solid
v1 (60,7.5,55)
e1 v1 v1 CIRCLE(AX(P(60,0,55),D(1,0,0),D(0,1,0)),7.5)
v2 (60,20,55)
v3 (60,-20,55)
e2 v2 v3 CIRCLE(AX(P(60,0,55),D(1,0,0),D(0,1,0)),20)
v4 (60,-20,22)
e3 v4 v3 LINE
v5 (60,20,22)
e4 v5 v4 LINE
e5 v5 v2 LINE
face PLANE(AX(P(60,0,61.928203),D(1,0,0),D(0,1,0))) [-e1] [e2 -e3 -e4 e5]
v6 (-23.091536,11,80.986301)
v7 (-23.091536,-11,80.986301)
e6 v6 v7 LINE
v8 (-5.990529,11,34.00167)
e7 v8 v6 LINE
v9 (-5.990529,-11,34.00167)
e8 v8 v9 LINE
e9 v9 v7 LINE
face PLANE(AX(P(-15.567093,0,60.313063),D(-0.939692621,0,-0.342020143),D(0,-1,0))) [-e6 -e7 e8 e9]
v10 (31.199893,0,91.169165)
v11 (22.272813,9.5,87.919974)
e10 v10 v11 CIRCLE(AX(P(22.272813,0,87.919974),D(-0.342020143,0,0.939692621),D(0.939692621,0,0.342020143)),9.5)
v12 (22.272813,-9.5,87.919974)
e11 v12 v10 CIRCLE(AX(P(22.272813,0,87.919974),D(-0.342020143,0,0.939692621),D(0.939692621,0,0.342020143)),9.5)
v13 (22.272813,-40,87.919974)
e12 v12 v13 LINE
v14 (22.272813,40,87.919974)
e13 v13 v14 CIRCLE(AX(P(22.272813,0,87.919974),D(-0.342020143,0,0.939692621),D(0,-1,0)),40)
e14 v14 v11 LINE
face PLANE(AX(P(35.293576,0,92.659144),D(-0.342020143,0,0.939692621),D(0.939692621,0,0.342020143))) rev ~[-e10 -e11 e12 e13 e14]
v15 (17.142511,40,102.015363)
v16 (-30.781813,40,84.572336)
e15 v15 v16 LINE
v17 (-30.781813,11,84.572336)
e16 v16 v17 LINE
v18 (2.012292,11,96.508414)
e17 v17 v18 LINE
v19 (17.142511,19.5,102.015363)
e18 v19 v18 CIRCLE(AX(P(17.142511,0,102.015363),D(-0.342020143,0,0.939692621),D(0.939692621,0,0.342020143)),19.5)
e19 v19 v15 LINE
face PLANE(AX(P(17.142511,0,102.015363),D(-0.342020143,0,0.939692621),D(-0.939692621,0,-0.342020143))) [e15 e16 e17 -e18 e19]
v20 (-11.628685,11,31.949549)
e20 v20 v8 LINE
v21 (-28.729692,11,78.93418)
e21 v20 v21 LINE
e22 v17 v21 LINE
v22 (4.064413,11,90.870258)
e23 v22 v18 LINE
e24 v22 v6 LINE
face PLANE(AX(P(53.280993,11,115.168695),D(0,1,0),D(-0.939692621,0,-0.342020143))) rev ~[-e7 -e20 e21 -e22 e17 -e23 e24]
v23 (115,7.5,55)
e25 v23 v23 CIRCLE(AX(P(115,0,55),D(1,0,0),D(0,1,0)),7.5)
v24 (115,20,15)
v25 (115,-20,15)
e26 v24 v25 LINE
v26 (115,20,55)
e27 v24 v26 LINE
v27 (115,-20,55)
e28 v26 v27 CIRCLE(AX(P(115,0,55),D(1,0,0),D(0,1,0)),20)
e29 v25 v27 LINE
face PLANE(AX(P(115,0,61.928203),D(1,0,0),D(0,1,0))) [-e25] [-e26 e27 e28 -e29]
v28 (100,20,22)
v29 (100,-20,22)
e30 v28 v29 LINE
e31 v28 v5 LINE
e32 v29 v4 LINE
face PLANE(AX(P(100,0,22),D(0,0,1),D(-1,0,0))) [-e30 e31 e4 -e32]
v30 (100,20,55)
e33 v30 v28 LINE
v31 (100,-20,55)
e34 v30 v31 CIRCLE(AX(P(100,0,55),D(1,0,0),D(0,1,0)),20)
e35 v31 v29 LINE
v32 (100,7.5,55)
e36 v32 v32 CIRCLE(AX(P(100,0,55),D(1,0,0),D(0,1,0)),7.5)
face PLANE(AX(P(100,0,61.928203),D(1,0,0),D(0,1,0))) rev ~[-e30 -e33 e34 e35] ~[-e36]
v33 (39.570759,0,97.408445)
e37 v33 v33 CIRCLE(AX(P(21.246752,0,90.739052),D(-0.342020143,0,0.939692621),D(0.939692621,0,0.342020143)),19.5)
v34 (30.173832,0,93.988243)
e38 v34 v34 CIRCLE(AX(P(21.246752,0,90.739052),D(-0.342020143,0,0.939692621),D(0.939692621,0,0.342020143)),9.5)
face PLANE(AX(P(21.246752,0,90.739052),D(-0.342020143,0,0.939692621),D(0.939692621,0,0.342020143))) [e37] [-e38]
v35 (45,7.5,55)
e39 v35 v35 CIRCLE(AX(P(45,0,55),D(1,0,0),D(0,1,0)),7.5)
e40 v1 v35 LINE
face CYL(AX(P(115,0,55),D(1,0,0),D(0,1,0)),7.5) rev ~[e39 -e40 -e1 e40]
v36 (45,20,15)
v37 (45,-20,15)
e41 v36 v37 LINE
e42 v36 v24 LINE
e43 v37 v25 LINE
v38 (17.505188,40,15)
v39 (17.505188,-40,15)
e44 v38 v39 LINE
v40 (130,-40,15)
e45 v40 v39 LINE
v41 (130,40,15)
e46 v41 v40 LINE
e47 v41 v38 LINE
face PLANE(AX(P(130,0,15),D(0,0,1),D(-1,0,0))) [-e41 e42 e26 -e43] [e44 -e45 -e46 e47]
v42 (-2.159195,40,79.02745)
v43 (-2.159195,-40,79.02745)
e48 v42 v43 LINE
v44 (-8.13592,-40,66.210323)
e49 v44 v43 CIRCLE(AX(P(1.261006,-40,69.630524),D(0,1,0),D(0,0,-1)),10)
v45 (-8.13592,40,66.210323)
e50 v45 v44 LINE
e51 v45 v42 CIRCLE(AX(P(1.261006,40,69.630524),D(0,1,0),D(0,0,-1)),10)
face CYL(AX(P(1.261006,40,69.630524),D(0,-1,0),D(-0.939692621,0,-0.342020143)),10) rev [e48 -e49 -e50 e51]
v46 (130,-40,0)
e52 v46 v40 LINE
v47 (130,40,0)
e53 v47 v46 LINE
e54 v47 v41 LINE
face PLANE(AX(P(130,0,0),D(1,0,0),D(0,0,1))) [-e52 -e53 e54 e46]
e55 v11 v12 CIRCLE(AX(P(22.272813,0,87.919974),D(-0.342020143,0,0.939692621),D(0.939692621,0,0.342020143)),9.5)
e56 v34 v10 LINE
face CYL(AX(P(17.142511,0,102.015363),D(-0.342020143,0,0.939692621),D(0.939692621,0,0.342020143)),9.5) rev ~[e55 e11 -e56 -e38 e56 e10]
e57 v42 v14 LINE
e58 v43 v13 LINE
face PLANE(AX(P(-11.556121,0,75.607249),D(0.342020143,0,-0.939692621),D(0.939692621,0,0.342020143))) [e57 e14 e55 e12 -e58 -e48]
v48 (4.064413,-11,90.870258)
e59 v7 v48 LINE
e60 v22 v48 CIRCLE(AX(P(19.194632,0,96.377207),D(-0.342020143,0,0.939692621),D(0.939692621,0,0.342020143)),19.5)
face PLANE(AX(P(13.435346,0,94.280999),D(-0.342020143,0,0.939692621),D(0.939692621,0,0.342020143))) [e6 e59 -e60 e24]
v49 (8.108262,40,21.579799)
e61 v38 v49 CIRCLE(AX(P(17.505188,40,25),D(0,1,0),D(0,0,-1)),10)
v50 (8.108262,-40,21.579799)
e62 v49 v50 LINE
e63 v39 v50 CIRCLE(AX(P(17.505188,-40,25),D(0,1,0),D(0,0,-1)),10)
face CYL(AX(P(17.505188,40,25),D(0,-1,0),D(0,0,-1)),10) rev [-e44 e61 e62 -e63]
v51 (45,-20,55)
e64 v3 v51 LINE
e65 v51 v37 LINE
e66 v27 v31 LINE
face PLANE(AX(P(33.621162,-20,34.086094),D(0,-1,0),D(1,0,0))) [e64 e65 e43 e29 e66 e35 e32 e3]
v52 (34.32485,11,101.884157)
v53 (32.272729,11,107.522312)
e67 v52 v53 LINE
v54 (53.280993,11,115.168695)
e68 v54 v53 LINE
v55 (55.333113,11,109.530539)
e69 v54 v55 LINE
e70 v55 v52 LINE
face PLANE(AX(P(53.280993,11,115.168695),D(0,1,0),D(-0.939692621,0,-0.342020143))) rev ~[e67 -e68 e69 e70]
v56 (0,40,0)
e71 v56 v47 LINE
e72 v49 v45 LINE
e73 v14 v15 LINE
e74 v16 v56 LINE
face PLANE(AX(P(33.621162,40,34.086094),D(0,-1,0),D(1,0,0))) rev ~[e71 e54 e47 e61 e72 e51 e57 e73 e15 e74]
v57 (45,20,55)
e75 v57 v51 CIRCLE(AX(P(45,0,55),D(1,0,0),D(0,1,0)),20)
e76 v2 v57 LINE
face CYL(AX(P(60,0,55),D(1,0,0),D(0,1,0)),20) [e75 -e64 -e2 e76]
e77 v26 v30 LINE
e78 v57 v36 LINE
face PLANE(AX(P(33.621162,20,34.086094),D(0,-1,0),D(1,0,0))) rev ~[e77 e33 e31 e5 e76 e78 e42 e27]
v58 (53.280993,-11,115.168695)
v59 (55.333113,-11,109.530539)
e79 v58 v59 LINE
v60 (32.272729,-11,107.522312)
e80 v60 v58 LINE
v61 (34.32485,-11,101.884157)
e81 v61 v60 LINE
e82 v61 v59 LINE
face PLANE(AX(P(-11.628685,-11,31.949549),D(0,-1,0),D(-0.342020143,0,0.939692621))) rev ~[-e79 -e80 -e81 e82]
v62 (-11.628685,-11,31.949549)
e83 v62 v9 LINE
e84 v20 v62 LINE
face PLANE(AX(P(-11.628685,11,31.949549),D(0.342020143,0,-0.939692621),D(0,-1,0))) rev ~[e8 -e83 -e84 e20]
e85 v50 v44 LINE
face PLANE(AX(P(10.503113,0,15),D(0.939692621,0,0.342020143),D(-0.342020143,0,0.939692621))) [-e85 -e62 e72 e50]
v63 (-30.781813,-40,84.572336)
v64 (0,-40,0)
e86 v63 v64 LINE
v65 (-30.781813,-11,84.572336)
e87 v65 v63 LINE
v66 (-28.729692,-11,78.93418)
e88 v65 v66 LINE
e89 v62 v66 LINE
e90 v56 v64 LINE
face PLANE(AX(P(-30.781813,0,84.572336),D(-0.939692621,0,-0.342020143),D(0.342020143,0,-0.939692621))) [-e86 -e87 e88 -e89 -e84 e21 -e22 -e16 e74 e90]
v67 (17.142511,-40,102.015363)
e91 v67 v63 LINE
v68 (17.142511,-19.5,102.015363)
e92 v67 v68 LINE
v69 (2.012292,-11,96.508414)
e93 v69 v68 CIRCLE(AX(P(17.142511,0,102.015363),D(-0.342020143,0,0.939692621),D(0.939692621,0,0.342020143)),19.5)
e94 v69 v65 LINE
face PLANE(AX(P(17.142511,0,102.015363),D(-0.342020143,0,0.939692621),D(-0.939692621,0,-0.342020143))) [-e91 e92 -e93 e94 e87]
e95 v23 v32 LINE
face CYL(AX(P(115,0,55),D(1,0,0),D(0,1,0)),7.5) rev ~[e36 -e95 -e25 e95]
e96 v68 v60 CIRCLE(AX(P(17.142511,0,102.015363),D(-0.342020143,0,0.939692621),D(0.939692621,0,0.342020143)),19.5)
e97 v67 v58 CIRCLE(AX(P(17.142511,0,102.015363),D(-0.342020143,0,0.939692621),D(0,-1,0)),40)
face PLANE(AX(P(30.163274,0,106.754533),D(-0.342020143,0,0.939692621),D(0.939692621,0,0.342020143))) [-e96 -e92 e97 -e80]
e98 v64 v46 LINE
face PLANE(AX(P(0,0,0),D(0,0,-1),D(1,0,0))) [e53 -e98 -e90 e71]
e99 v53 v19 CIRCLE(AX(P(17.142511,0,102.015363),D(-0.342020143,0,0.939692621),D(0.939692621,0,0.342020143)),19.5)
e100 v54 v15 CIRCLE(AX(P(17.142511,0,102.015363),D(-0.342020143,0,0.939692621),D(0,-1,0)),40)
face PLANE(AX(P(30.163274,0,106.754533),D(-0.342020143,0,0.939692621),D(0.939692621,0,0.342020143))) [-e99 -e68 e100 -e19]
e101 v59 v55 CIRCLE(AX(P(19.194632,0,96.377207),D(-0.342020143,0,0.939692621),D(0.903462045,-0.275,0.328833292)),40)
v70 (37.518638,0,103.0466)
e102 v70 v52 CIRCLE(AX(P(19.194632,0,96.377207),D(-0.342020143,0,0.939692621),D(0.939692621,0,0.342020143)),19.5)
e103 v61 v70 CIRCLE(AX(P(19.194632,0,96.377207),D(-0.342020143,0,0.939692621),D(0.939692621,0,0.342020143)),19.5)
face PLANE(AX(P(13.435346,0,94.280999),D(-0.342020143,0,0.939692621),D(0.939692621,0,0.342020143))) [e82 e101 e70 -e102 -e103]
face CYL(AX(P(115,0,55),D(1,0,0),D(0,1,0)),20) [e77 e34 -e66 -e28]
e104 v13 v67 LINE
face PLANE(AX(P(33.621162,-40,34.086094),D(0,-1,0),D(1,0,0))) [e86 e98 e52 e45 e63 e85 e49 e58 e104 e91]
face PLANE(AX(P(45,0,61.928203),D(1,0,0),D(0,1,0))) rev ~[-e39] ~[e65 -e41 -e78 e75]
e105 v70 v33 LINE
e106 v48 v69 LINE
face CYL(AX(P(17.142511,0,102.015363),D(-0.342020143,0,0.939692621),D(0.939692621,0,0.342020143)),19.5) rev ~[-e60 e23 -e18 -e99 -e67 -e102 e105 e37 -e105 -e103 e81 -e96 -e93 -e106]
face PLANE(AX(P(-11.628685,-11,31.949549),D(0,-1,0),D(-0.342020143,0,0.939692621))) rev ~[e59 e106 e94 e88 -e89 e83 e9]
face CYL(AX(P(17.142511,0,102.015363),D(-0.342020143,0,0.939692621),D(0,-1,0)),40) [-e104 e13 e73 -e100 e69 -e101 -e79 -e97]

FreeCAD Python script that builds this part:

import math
import FreeCAD as App
import Part
import Sketcher

V = App.Vector
Q = App.Units.Quantity


def edges_at(feature, points):
    """Names of the edges that pass closest to the given points."""
    edges = feature.Shape.Edges
    near = lambda p: min(range(len(edges)), key=lambda i: edges[i].distToShape(Part.Vertex(*p))[0])
    return sorted({f"Edge{near(p) + 1}" for p in points})

doc = App.newDocument("Part")
body = doc.addObject("PartDesign::Body", "Body")

# Sketch on XZ plane
sketch1 = doc.addObject("Sketcher::SketchObject", "Sketch")
body.addObject(sketch1)
sketch1.AttachmentSupport = (doc.XZ_Plane, [""])
sketch1.MapMode = "FlatFace"
sketch1.addGeometry([
    Part.LineSegment(V(-31, 85, 0), V(0, 0, 0)),  # 0
    Part.LineSegment(V(0, 0, 0), V(130, 0, 0)),  # 1
    Part.LineSegment(V(130, 0, 0), V(130, 15, 0)),  # 2
    Part.LineSegment(V(130, 15, 0), V(11, 15, 0)),  # 3
    Part.LineSegment(V(11, 15, 0), V(-12, 76, 0)),  # 4
    Part.LineSegment(V(-12, 76, 0), V(22, 88, 0)),  # 5
    Part.LineSegment(V(22, 88, 0), V(17, 102, 0)),  # 6
    Part.LineSegment(V(17, 102, 0), V(-31, 85, 0)),  # 7
], False)
sketch1.addConstraint([
    Sketcher.Constraint("Coincident", 0, 2, 1, 1),
    Sketcher.Constraint("Coincident", 1, 2, 2, 1),
    Sketcher.Constraint("Coincident", 2, 2, 3, 1),
    Sketcher.Constraint("Coincident", 3, 2, 4, 1),
    Sketcher.Constraint("Coincident", 4, 2, 5, 1),
    Sketcher.Constraint("Coincident", 5, 2, 6, 1),
    Sketcher.Constraint("Coincident", 6, 2, 7, 1),
    Sketcher.Constraint("Coincident", 7, 2, 0, 1),
    Sketcher.Constraint("Horizontal", 1),
    Sketcher.Constraint("Vertical", 2),
    Sketcher.Constraint("Horizontal", 3),
    Sketcher.Constraint("Coincident", 0, 2, -1, 1),
    Sketcher.Constraint("Parallel", 0, 4),
    Sketcher.Constraint("Perpendicular", 4, 5),
    Sketcher.Constraint("Perpendicular", 5, 6),
    Sketcher.Constraint("Perpendicular", 6, 7),
    Sketcher.Constraint("DistanceX", 1, 1, 1, 2, 130.0),
    Sketcher.Constraint("DistanceY", 2, 1, 2, 2, 15.0),
    Sketcher.Constraint("Angle", 0, Q("-70 deg")),
    Sketcher.Constraint("Distance", 0, 90.0),
    Sketcher.Constraint("Distance", 5, 36.0),
    Sketcher.Constraint("Distance", 6, 15.0),
    Sketcher.Constraint("Distance", 7, 51.0),
])
pad1 = doc.addObject("PartDesign::Pad", "Pad")
body.addObject(pad1)
pad1.Profile = sketch1
pad1.Length = 80
pad1.Midplane = True

# Sketch on an angled plane
sketch2 = doc.addObject("Sketcher::SketchObject", "Sketch001")
body.addObject(sketch2)
sketch2.Placement = App.Placement(V(-30.781813, 0, 84.572336), App.Rotation(V(0.939692621, 0, 0.342020143), V(0, 1, 0), V(-0.342020143, 0, 0.939692621), "ZXY"))
sketch2.addGeometry([
    Part.LineSegment(V(51, 40, 0), V(51, -40, 0)),
    Part.ArcOfCircle(Part.Circle(V(51, 0, 0), V(0, 0, 1), 40), math.radians(-90), math.radians(90)),
], False)
sketch2.addConstraint([
    Sketcher.Constraint("Coincident", 0, 1, 1, 2),
    Sketcher.Constraint("Coincident", 1, 1, 0, 2),
    Sketcher.Constraint("Vertical", 0),
    Sketcher.Constraint("PointOnObject", 1, 3, -1),
    Sketcher.Constraint("Vertical", 1, 3, 0, 1),
    Sketcher.Constraint("Radius", 1, 40.0),
    Sketcher.Constraint("DistanceX", -1, 1, 1, 3, 51.0),
])
pad2 = doc.addObject("PartDesign::Pad", "Pad001")
body.addObject(pad2)
pad2.Profile = sketch2
pad2.Length = 15
pad2.Reversed = True

# Sketch on XZ plane
sketch3 = doc.addObject("Sketcher::SketchObject", "Sketch002")
body.addObject(sketch3)
sketch3.AttachmentSupport = (doc.XZ_Plane, [""])
sketch3.MapMode = "FlatFace"
sketch3.addGeometry([
    Part.LineSegment(V(-31, 85, 0), V(0, 0, 0)),  # 0
    Part.LineSegment(V(0, 0, 0), V(130, 0, 0)),  # 1
    Part.LineSegment(V(130, 0, 0), V(130, 15, 0)),  # 2
    Part.LineSegment(V(130, 15, 0), V(115, 15, 0)),  # 3
    Part.LineSegment(V(115, 15, 0), V(115, 55, 0)),  # 4
    Part.LineSegment(V(115, 55, 0), V(100, 55, 0)),  # 5
    Part.LineSegment(V(100, 55, 0), V(100, 22, 0)),  # 6
    Part.LineSegment(V(100, 22, 0), V(60, 22, 0)),  # 7
    Part.LineSegment(V(60, 22, 0), V(60, 55, 0)),  # 8
    Part.LineSegment(V(60, 55, 0), V(45, 55, 0)),  # 9
    Part.LineSegment(V(45, 55, 0), V(45, 15, 0)),  # 10
    Part.LineSegment(V(45, 15, 0), V(11, 15, 0)),  # 11
    Part.LineSegment(V(11, 15, 0), V(-12, 76, 0)),  # 12
    Part.LineSegment(V(-12, 76, 0), V(22, 88, 0)),  # 13
    Part.LineSegment(V(22, 88, 0), V(17, 102, 0)),  # 14
    Part.LineSegment(V(17, 102, 0), V(-31, 85, 0)),  # 15
], False)
sketch3.addConstraint([
    Sketcher.Constraint("Coincident", 0, 2, 1, 1),
    Sketcher.Constraint("Coincident", 1, 2, 2, 1),
    Sketcher.Constraint("Coincident", 2, 2, 3, 1),
    Sketcher.Constraint("Coincident", 3, 2, 4, 1),
    Sketcher.Constraint("Coincident", 4, 2, 5, 1),
    Sketcher.Constraint("Coincident", 5, 2, 6, 1),
    Sketcher.Constraint("Coincident", 6, 2, 7, 1),
    Sketcher.Constraint("Coincident", 7, 2, 8, 1),
    Sketcher.Constraint("Coincident", 8, 2, 9, 1),
    Sketcher.Constraint("Coincident", 9, 2, 10, 1),
    Sketcher.Constraint("Coincident", 10, 2, 11, 1),
    Sketcher.Constraint("Coincident", 11, 2, 12, 1),
    Sketcher.Constraint("Coincident", 12, 2, 13, 1),
    Sketcher.Constraint("Coincident", 13, 2, 14, 1),
    Sketcher.Constraint("Coincident", 14, 2, 15, 1),
    Sketcher.Constraint("Coincident", 15, 2, 0, 1),
    Sketcher.Constraint("Horizontal", 1),
    Sketcher.Constraint("Vertical", 2),
    Sketcher.Constraint("Horizontal", 3),
    Sketcher.Constraint("Vertical", 4),
    Sketcher.Constraint("Horizontal", 5),
    Sketcher.Constraint("Vertical", 6),
    Sketcher.Constraint("Horizontal", 7),
    Sketcher.Constraint("Vertical", 8),
    Sketcher.Constraint("Horizontal", 9),
    Sketcher.Constraint("Vertical", 10),
    Sketcher.Constraint("Horizontal", 11),
    Sketcher.Constraint("Coincident", 0, 2, -1, 1),
    Sketcher.Constraint("Parallel", 0, 12),
    Sketcher.Constraint("Perpendicular", 12, 13),
    Sketcher.Constraint("Perpendicular", 13, 14),
    Sketcher.Constraint("Perpendicular", 14, 15),
    Sketcher.Constraint("Horizontal", 5, 2, 8, 2),
    Sketcher.Constraint("Horizontal", 3, 2, 10, 2),
    Sketcher.Constraint("Equal", 3, 5),
    Sketcher.Constraint("Equal", 5, 9),
    Sketcher.Constraint("Equal", 9, 2),
    Sketcher.Constraint("Equal", 7, 4),
    Sketcher.Constraint("DistanceX", 1, 1, 1, 2, 130.0),
    Sketcher.Constraint("DistanceX", 3, 2, 3, 1, 15.0),
    Sketcher.Constraint("DistanceX", 7, 2, 7, 1, 40.0),
    Sketcher.Constraint("DistanceY", 6, 2, 6, 1, 33.0),
    Sketcher.Constraint("Angle", 0, Q("-70 deg")),
    Sketcher.Constraint("Distance", 0, 90.0),
    Sketcher.Constraint("Distance", 13, 36.0),
    Sketcher.Constraint("Distance", 14, 15.0),
    Sketcher.Constraint("Distance", 15, 51.0),
])
pad3 = doc.addObject("PartDesign::Pad", "Pad002")
body.addObject(pad3)
pad3.Profile = sketch3
pad3.Length = 40
pad3.Midplane = True

# Sketch on YZ plane
sketch4 = doc.addObject("Sketcher::SketchObject", "Sketch003")
body.addObject(sketch4)
sketch4.AttachmentSupport = (doc.YZ_Plane, [""])
sketch4.MapMode = "FlatFace"
sketch4.AttachmentOffset = App.Placement(V(0, 0, 115), App.Rotation())
sketch4.addGeometry([
    Part.LineSegment(V(-20, 55, 0), V(20, 55, 0)),
    Part.ArcOfCircle(Part.Circle(V(0, 55, 0), V(0, 0, 1), 20), math.radians(0), math.radians(180)),
], False)
sketch4.addConstraint([
    Sketcher.Constraint("Coincident", 0, 1, 1, 2),
    Sketcher.Constraint("Coincident", 1, 1, 0, 2),
    Sketcher.Constraint("Horizontal", 0),
    Sketcher.Constraint("PointOnObject", 1, 3, -2),
    Sketcher.Constraint("Horizontal", 1, 3, 0, 1),
    Sketcher.Constraint("Radius", 1, 20.0),
    Sketcher.Constraint("DistanceY", -1, 1, 1, 3, 55.0),
])
pad4 = doc.addObject("PartDesign::Pad", "Pad003")
body.addObject(pad4)
pad4.Profile = sketch4
pad4.Length = 15
pad4.Reversed = True

# Sketch on YZ plane
sketch5 = doc.addObject("Sketcher::SketchObject", "Sketch004")
body.addObject(sketch5)
sketch5.AttachmentSupport = (doc.YZ_Plane, [""])
sketch5.MapMode = "FlatFace"
sketch5.AttachmentOffset = App.Placement(V(0, 0, 60), App.Rotation())
sketch5.addGeometry([
    Part.LineSegment(V(-20, 55, 0), V(20, 55, 0)),
    Part.ArcOfCircle(Part.Circle(V(0, 55, 0), V(0, 0, 1), 20), math.radians(0), math.radians(180)),
], False)
sketch5.addConstraint([
    Sketcher.Constraint("Coincident", 0, 1, 1, 2),
    Sketcher.Constraint("Coincident", 1, 1, 0, 2),
    Sketcher.Constraint("Horizontal", 0),
    Sketcher.Constraint("PointOnObject", 1, 3, -2),
    Sketcher.Constraint("Horizontal", 1, 3, 0, 1),
    Sketcher.Constraint("Radius", 1, 20.0),
    Sketcher.Constraint("DistanceY", -1, 1, 1, 3, 55.0),
])
pad5 = doc.addObject("PartDesign::Pad", "Pad004")
body.addObject(pad5)
pad5.Profile = sketch5
pad5.Length = 15
pad5.Reversed = True

# Sketch on YZ plane
sketch6 = doc.addObject("Sketcher::SketchObject", "Sketch005")
body.addObject(sketch6)
sketch6.AttachmentSupport = (doc.YZ_Plane, [""])
sketch6.MapMode = "FlatFace"
sketch6.AttachmentOffset = App.Placement(V(0, 0, 115), App.Rotation())
sketch6.addGeometry(Part.Circle(V(0, 55, 0), V(0, 0, 1), 8), False)
sketch6.addConstraint([
    Sketcher.Constraint("PointOnObject", 0, 3, -2),
    Sketcher.Constraint("Diameter", 0, 15.0),
    Sketcher.Constraint("DistanceY", -1, 1, 0, 3, 55.0),
])
pocket1 = doc.addObject("PartDesign::Pocket", "Pocket")
body.addObject(pocket1)
pocket1.Profile = sketch6
pocket1.Length = 70

# Sketch on an angled plane
sketch7 = doc.addObject("Sketcher::SketchObject", "Sketch006")
body.addObject(sketch7)
sketch7.Placement = App.Placement(V(-30.781813, 0, 84.572336), App.Rotation(V(0.939692621, 0, 0.342020143), V(0, 1, 0), V(-0.342020143, 0, 0.939692621), "ZXY"))
sketch7.addGeometry([
    Part.LineSegment(V(89, 11, 0), V(0, 11, 0)),
    Part.LineSegment(V(0, 11, 0), V(0, -11, 0)),
    Part.LineSegment(V(0, -11, 0), V(89, -11, 0)),
    Part.ArcOfCircle(Part.Circle(V(51, 0, 0), V(0, 0, 1), 40), math.radians(-16), math.radians(16)),
], False)
sketch7.addConstraint([
    Sketcher.Constraint("Coincident", 0, 2, 1, 1),
    Sketcher.Constraint("Coincident", 1, 2, 2, 1),
    Sketcher.Constraint("Coincident", 2, 2, 3, 1),
    Sketcher.Constraint("Coincident", 3, 2, 0, 1),
    Sketcher.Constraint("Horizontal", 0),
    Sketcher.Constraint("Vertical", 1),
    Sketcher.Constraint("Horizontal", 2),
    Sketcher.Constraint("Symmetric", 0, 2, 1, 2, -1, 1),
    Sketcher.Constraint("PointOnObject", 3, 3, -1),
    Sketcher.Constraint("Radius", 3, 40.0),
    Sketcher.Constraint("DistanceY", 1, 2, 1, 1, 22.0),
    Sketcher.Constraint("DistanceX", -1, 1, 3, 3, 51.0),
])
pocket2 = doc.addObject("PartDesign::Pocket", "Pocket001")
body.addObject(pocket2)
pocket2.Profile = sketch7
pocket2.Length = 6

# Sketch on an angled plane
sketch8 = doc.addObject("Sketcher::SketchObject", "Sketch007")
body.addObject(sketch8)
sketch8.Placement = App.Placement(V(0, 0, 0), App.Rotation(V(0, -1, 0), V(-0.342020143, 0, 0.939692621), V(-0.939692621, 0, -0.342020143), "ZXY"))
sketch8.addGeometry([
    Part.LineSegment(V(-11, 90, 0), V(-11, 34, 0)),
    Part.LineSegment(V(-11, 34, 0), V(11, 34, 0)),
    Part.LineSegment(V(11, 34, 0), V(11, 90, 0)),
    Part.LineSegment(V(11, 90, 0), V(-11, 90, 0)),
], False)
sketch8.addConstraint([
    Sketcher.Constraint("Coincident", 0, 2, 1, 1),
    Sketcher.Constraint("Coincident", 1, 2, 2, 1),
    Sketcher.Constraint("Coincident", 2, 2, 3, 1),
    Sketcher.Constraint("Coincident", 3, 2, 0, 1),
    Sketcher.Constraint("Vertical", 0),
    Sketcher.Constraint("Horizontal", 1),
    Sketcher.Constraint("Vertical", 2),
    Sketcher.Constraint("Horizontal", 3),
    Sketcher.Constraint("DistanceX", 1, 1, 1, 2, 22.0),
    Sketcher.Constraint("DistanceY", 0, 2, 0, 1, 56.0),
    Sketcher.Constraint("DistanceX", 0, 2, -1, 1, 11.0),
    Sketcher.Constraint("DistanceY", -1, 1, 0, 2, 34.0),
])
pocket3 = doc.addObject("PartDesign::Pocket", "Pocket002")
body.addObject(pocket3)
pocket3.Profile = sketch8
pocket3.Length = 6

# Sketch on an angled plane
sketch9 = doc.addObject("Sketcher::SketchObject", "Sketch008")
body.addObject(sketch9)
sketch9.Placement = App.Placement(V(-30.781813, 0, 84.572336), App.Rotation(V(0.939692621, 0, 0.342020143), V(0, 1, 0), V(-0.342020143, 0, 0.939692621), "ZXY"))
sketch9.addGeometry(Part.Circle(V(51, 0, 0), V(0, 0, 1), 10), False)
sketch9.addConstraint([
    Sketcher.Constraint("PointOnObject", 0, 3, -1),
    Sketcher.Constraint("Diameter", 0, 19.0),
    Sketcher.Constraint("DistanceX", -1, 1, 0, 3, 51.0),
])
pocket4 = doc.addObject("PartDesign::Pocket", "Pocket003")
body.addObject(pocket4)
pocket4.Profile = sketch9
pocket4.Length = 30

# Sketch on an angled plane
sketch10 = doc.addObject("Sketcher::SketchObject", "Sketch009")
body.addObject(sketch10)
sketch10.Placement = App.Placement(V(-30.781813, 0, 84.572336), App.Rotation(V(0.939692621, 0, 0.342020143), V(0, 1, 0), V(-0.342020143, 0, 0.939692621), "ZXY"))
sketch10.addGeometry([
    Part.Circle(V(51, 0, 0), V(0, 0, 1), 20),
    Part.Circle(V(51, 0, 0), V(0, 0, 1), 10),
], False)
sketch10.addConstraint([
    Sketcher.Constraint("Coincident", 1, 3, 0, 3),
    Sketcher.Constraint("PointOnObject", 0, 3, -1),
    Sketcher.Constraint("Diameter", 0, 39.0),
    Sketcher.Constraint("Diameter", 1, 19.0),
    Sketcher.Constraint("DistanceX", -1, 1, 0, 3, 51.0),
])
pocket5 = doc.addObject("PartDesign::Pocket", "Pocket004")
body.addObject(pocket5)
pocket5.Profile = sketch10
pocket5.Length = 12
doc.recompute()

fillet = doc.addObject("PartDesign::Fillet", "Fillet")
body.addObject(fillet)
fillet.Base = (pocket5, edges_at(pocket5, [(-11.556, 0, 75.607), (10.503, 0, 15)]))
fillet.Radius = 10

doc.recompute()
